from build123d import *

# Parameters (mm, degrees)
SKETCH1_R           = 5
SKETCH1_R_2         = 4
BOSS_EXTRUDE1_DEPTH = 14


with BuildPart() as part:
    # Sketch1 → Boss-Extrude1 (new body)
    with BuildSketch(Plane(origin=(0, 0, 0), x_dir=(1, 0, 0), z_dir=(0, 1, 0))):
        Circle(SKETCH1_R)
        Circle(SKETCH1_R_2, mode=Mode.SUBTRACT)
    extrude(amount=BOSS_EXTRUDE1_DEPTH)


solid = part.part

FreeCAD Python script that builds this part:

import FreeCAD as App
import Part
import Sketcher

V = App.Vector

doc = App.newDocument("Part")
params = doc.addObject("Spreadsheet::Sheet", "Params")
for row, (alias, value) in enumerate([
    ("sketch1_diameter", "10 mm"),
    ("sketch1_diameter2", "8 mm"),
    ("pad1_length", "14 mm"),
], start=1):
    params.set(f"A{row}", alias)
    params.set(f"B{row}", "=" + value)
    params.setAlias(f"B{row}", alias)

body = doc.addObject("PartDesign::Body", "Body")

sketch1 = doc.addObject("Sketcher::SketchObject", "Sketch")
body.addObject(sketch1)
sketch1.AttachmentSupport = (doc.XZ_Plane, [""])
sketch1.MapMode = "FlatFace"
sketch1.addGeometry(Part.Circle(V(0, 0, 0), V(0, 0, 1), 5), False)
sketch1.addGeometry(Part.Circle(V(0, 0, 0), V(0, 0, 1), 4), False)
sketch1.addConstraint(Sketcher.Constraint("Coincident", 0, 3, -1, 1))
sketch1.addConstraint(Sketcher.Constraint("Coincident", 1, 3, -1, 1))
sketch1.addConstraint(Sketcher.Constraint("Diameter", 0, 10.0))
sketch1.addConstraint(Sketcher.Constraint("Diameter", 1, 8.0))
sketch1.setExpression("Constraints[2]", "Params.sketch1_diameter")
sketch1.setExpression("Constraints[3]", "Params.sketch1_diameter2")
pad1 = doc.addObject("PartDesign::Pad", "Pad")
body.addObject(pad1)
pad1.Profile = sketch1
pad1.setExpression("Length", "Params.pad1_length")
pad1.Reversed = True

doc.recompute()
